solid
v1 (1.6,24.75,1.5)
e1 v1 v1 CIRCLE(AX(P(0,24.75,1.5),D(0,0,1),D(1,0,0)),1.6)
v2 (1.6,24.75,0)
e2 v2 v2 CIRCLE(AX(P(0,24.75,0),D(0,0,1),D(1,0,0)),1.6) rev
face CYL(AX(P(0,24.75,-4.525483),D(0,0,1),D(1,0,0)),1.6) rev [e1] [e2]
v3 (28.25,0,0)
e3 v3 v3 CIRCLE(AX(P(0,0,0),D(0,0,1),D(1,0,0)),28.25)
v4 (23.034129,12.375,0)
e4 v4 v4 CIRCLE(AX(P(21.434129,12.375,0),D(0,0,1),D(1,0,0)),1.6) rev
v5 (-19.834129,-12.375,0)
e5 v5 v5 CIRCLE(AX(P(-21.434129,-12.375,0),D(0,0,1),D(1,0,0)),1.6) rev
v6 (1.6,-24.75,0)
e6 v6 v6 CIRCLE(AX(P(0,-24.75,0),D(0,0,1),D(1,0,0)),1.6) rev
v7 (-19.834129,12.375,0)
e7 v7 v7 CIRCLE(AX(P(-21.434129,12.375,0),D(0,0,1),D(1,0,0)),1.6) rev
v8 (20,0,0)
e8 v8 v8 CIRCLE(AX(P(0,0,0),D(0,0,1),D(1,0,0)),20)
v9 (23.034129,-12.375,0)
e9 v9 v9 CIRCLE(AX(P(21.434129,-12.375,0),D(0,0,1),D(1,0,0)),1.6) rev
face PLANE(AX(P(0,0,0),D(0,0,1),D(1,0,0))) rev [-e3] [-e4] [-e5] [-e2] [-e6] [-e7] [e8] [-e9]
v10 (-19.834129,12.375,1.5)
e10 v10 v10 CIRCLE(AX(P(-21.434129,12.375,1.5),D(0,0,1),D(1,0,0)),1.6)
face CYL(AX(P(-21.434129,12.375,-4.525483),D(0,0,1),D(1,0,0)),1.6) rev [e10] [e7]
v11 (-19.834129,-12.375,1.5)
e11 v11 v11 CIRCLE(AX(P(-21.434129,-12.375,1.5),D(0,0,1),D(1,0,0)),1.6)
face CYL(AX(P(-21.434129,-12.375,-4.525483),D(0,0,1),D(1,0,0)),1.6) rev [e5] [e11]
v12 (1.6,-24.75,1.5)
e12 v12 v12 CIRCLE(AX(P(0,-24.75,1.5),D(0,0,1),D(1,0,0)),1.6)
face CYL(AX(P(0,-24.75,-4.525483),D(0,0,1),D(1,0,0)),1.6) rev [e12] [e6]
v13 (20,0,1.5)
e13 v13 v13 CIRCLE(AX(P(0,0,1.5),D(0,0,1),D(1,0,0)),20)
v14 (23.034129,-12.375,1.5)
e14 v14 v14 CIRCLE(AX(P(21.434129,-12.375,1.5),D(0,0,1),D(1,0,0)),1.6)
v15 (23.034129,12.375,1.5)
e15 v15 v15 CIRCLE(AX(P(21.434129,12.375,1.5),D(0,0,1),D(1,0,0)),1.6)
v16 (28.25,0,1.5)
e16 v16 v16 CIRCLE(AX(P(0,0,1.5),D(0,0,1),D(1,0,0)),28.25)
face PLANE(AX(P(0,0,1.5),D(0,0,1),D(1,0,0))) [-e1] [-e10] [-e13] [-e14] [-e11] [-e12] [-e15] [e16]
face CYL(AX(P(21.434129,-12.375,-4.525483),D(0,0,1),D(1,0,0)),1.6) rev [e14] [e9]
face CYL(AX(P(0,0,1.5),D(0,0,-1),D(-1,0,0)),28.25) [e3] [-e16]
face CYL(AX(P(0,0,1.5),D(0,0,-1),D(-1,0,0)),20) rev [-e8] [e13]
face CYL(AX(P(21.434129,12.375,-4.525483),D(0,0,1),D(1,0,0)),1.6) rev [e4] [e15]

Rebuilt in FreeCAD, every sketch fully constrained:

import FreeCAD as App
import Part
import Sketcher
Q = App.Units.Quantity

doc = App.newDocument("Part")
body = doc.addObject("PartDesign::Body", "Body")

# Sketch on XY plane
sketch1 = body.newObject("Sketcher::SketchObject", "Sketch")
sketch1.AttachmentSupport = (doc.getObject("XY_Plane"), [""])
sketch1.MapMode = "FlatFace"
sketch1.addGeometry(Part.Circle(App.Vector(0, 0, 0), App.Vector(0, 0, 1), 28), False)
sketch1.addGeometry(Part.Circle(App.Vector(0, 0, 0), App.Vector(0, 0, 1), 20), False)
sketch1.addConstraint(Sketcher.Constraint("Coincident", 0, 3, -1, 1))
sketch1.addConstraint(Sketcher.Constraint("Coincident", 1, 3, -1, 1))
sketch1.addConstraint(Sketcher.Constraint("Diameter", 1, Q("40 mm")))
sketch1.addConstraint(Sketcher.Constraint("Diameter", 0, Q("56.5 mm")))
pad1 = body.newObject("PartDesign::Pad", "Pad")
pad1.Profile = sketch1
pad1.Length = 1.5

# Sketch on XY plane
sketch2 = body.newObject("Sketcher::SketchObject", "Sketch001")
sketch2.AttachmentSupport = (doc.getObject("XY_Plane"), [""])
sketch2.MapMode = "FlatFace"
sketch2.AttachmentOffset = App.Placement(App.Vector(0, 0, 1.5), App.Rotation())
sketch2.addGeometry(Part.Circle(App.Vector(0, 24.8, 0), App.Vector(0, 0, 1), 1.6), False)
sketch2.addGeometry(Part.Circle(App.Vector(21.4, 12.4, 0), App.Vector(0, 0, 1), 1.6), False)
sketch2.addGeometry(Part.Circle(App.Vector(21.4, -12.4, 0), App.Vector(0, 0, 1), 1.6), False)
sketch2.addGeometry(Part.Circle(App.Vector(0, -24.8, 0), App.Vector(0, 0, 1), 1.6), False)
sketch2.addGeometry(Part.Circle(App.Vector(-21.4, -12.4, 0), App.Vector(0, 0, 1), 1.6), False)
sketch2.addGeometry(Part.Circle(App.Vector(-21.4, 12.4, 0), App.Vector(0, 0, 1), 1.6), False)
sketch2.addConstraint(Sketcher.Constraint("Equal", 0, 1))
sketch2.addConstraint(Sketcher.Constraint("Equal", 1, 2))
sketch2.addConstraint(Sketcher.Constraint("Equal", 2, 3))
sketch2.addConstraint(Sketcher.Constraint("Equal", 3, 4))
sketch2.addConstraint(Sketcher.Constraint("Equal", 4, 5))
sketch2.addConstraint(Sketcher.Constraint("Symmetric", 0, 3, 3, 3, -1, 1))
sketch2.addConstraint(Sketcher.Constraint("Symmetric", 1, 3, 4, 3, -1, 1))
sketch2.addConstraint(Sketcher.Constraint("Symmetric", 2, 3, 5, 3, -1, 1))
sketch2.addConstraint(Sketcher.Constraint("Symmetric", 2, 3, 4, 3, -2))
sketch2.addConstraint(Sketcher.Constraint("PointOnObject", 0, 3, -2))
sketch2.addConstraint(Sketcher.Constraint("Diameter", 0, Q("3.2 mm")))
sketch2.addConstraint(Sketcher.Constraint("DistanceY", 3, 3, 0, 3, Q("49.5 mm")))
sketch2.addConstraint(Sketcher.Constraint("DistanceY", 2, 3, 1, 3, Q("24.75 mm")))
sketch2.addConstraint(Sketcher.Constraint("DistanceX", -1, 1, 1, 3, Q("21.434129 mm")))
pocket1 = body.newObject("PartDesign::Pocket", "Pocket")
pocket1.Profile = sketch2
pocket1.Length = 1.5

doc.recompute()
